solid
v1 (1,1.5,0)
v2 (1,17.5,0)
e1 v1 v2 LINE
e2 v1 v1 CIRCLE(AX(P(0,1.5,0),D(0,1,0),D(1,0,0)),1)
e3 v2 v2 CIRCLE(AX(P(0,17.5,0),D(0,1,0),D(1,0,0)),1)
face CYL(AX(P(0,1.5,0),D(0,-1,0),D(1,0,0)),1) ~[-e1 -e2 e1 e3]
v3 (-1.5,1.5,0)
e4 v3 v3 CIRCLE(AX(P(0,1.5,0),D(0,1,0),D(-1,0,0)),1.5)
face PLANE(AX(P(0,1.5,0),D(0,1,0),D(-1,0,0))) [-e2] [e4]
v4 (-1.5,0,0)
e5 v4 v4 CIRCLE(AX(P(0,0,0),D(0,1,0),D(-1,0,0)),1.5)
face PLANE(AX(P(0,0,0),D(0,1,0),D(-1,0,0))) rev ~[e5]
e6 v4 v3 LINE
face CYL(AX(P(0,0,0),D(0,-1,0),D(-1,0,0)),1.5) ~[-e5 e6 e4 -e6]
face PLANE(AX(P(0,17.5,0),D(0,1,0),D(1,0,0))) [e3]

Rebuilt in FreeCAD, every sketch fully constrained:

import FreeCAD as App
import Part
import Sketcher
from FreeCAD import Vector

doc = App.newDocument("Part")
body = doc.addObject("PartDesign::Body", "Body")

# Sketch on XZ plane
sketch1 = doc.addObject("Sketcher::SketchObject", "Sketch")
body.addObject(sketch1)
sketch1.AttachmentSupport = (doc.XZ_Plane, [""])
sketch1.MapMode = "FlatFace"
sketch1.addGeometry(Part.Circle(Vector(0, 0, 0), Vector(0, 0, 1), 1.5), False)
sketch1.addConstraint(Sketcher.Constraint("Coincident", 0, 3, -1, 1))
sketch1.addConstraint(Sketcher.Constraint("Diameter", 0, 3.0))
pad1 = doc.addObject("PartDesign::Pad", "Pad")
body.addObject(pad1)
pad1.Profile = sketch1
pad1.Length = 1.5
pad1.Reversed = True

# Sketch on XZ plane
sketch2 = doc.addObject("Sketcher::SketchObject", "Sketch001")
body.addObject(sketch2)
sketch2.AttachmentSupport = (doc.XZ_Plane, [""])
sketch2.MapMode = "FlatFace"
sketch2.AttachmentOffset = App.Placement(Vector(0, 0, -1.5), App.Rotation())
sketch2.addGeometry(Part.Circle(Vector(0, 0, 0), Vector(0, 0, 1), 1), False)
sketch2.addConstraint(Sketcher.Constraint("Coincident", 0, 3, -1, 1))
sketch2.addConstraint(Sketcher.Constraint("Diameter", 0, 2.0))
pad2 = doc.addObject("PartDesign::Pad", "Pad001")
body.addObject(pad2)
pad2.Profile = sketch2
pad2.Length = 16
pad2.Reversed = True

doc.recompute()
